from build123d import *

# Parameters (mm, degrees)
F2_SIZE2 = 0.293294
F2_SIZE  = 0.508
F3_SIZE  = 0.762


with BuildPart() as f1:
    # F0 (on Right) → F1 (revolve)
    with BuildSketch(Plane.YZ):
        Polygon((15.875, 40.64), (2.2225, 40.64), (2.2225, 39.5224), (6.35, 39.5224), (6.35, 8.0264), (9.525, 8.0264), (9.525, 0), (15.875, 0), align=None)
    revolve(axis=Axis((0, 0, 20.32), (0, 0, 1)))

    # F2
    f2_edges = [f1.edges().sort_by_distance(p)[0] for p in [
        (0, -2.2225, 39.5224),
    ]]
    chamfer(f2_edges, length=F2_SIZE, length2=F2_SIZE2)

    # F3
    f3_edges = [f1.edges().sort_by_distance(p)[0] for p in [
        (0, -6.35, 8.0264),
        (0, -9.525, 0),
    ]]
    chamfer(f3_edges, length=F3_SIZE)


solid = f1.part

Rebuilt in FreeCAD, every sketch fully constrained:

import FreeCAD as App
import Part
import Sketcher
from FreeCAD import Vector
Q = App.Units.Quantity


def edges_at(feature, points):
    """Names of the edges that pass closest to the given points."""
    edges = feature.Shape.Edges
    near = lambda p: min(range(len(edges)), key=lambda i: edges[i].distToShape(Part.Vertex(*p))[0])
    return sorted({f"Edge{near(p) + 1}" for p in points})


def add_polygon(sketch, points):
    """Adds a closed chain of lines whose ends are joined by coincident constraints."""
    first, n = sketch.GeometryCount, len(points)
    for a, b in zip(points, points[1:] + points[:1]):
        sketch.addGeometry(Part.LineSegment(App.Vector(*a, 0), App.Vector(*b, 0)), False)
    for i in range(n):
        sketch.addConstraint(Sketcher.Constraint("Coincident", first + i, 2, first + (i + 1) % n, 1))

doc = App.newDocument("Part")
body = doc.addObject("PartDesign::Body", "Body")

# Sketch on YZ plane
sketch1 = doc.addObject("Sketcher::SketchObject", "Sketch")
body.addObject(sketch1)
sketch1.AttachmentSupport = (doc.YZ_Plane, [""])
sketch1.MapMode = "FlatFace"
add_polygon(sketch1, [(15.875, 40.64), (2.2225, 40.64), (2.2225, 39.5224), (6.35, 39.5224), (6.35, 8.0264), (9.525, 8.0264), (9.525, 0), (15.875, 0)])  # lines 0-7
sketch1.addConstraint(Sketcher.Constraint("Horizontal", 0))
sketch1.addConstraint(Sketcher.Constraint("Vertical", 1))
sketch1.addConstraint(Sketcher.Constraint("Horizontal", 2))
sketch1.addConstraint(Sketcher.Constraint("Vertical", 3))
sketch1.addConstraint(Sketcher.Constraint("Horizontal", 4))
sketch1.addConstraint(Sketcher.Constraint("Vertical", 5))
sketch1.addConstraint(Sketcher.Constraint("Horizontal", 6))
sketch1.addConstraint(Sketcher.Constraint("Vertical", 7))
sketch1.addConstraint(Sketcher.Constraint("PointOnObject", 5, 2, -1))
sketch1.addConstraint(Sketcher.Constraint("DistanceY", 7, 1, 7, 2, Q("1.6 in")))
sketch1.addConstraint(Sketcher.Constraint("DistanceX", 6, 1, 6, 2, Q("0.25 in")))
sketch1.addConstraint(Sketcher.Constraint("DistanceY", 3, 2, 3, 1, Q("1.24 in")))
sketch1.addConstraint(Sketcher.Constraint("DistanceX", 4, 1, 4, 2, Q("0.125 in")))
sketch1.addConstraint(Sketcher.Constraint("DistanceY", 1, 2, 1, 1, Q("0.044 in")))
sketch1.addConstraint(Sketcher.Constraint("DistanceX", -1, 1, 2, 2, Q("0.25 in")))
sketch1.addConstraint(Sketcher.Constraint("DistanceX", 0, 2, 0, 1, Q("0.5375 in")))
revolution = doc.addObject("PartDesign::Revolution", "Revolution")
body.addObject(revolution)
revolution.Profile = sketch1
revolution.ReferenceAxis = (sketch1, ["V_Axis"])
revolution.Angle = 360
doc.recompute()

chamfer = doc.addObject("PartDesign::Chamfer", "Chamfer")
body.addObject(chamfer)
chamfer.Base = (revolution, edges_at(revolution, [(0, -2.223, 39.522)]))
chamfer.ChamferType = "Two distances"
chamfer.Size = Q("0.02 in")
chamfer.Size2 = 0.293294
doc.recompute()

chamfer2 = doc.addObject("PartDesign::Chamfer", "Chamfer001")
body.addObject(chamfer2)
chamfer2.Base = (chamfer, edges_at(chamfer, [(0, -6.35, 8.026), (0, -9.525, 0)]))
chamfer2.Size = Q("0.03 in")

doc.recompute()
